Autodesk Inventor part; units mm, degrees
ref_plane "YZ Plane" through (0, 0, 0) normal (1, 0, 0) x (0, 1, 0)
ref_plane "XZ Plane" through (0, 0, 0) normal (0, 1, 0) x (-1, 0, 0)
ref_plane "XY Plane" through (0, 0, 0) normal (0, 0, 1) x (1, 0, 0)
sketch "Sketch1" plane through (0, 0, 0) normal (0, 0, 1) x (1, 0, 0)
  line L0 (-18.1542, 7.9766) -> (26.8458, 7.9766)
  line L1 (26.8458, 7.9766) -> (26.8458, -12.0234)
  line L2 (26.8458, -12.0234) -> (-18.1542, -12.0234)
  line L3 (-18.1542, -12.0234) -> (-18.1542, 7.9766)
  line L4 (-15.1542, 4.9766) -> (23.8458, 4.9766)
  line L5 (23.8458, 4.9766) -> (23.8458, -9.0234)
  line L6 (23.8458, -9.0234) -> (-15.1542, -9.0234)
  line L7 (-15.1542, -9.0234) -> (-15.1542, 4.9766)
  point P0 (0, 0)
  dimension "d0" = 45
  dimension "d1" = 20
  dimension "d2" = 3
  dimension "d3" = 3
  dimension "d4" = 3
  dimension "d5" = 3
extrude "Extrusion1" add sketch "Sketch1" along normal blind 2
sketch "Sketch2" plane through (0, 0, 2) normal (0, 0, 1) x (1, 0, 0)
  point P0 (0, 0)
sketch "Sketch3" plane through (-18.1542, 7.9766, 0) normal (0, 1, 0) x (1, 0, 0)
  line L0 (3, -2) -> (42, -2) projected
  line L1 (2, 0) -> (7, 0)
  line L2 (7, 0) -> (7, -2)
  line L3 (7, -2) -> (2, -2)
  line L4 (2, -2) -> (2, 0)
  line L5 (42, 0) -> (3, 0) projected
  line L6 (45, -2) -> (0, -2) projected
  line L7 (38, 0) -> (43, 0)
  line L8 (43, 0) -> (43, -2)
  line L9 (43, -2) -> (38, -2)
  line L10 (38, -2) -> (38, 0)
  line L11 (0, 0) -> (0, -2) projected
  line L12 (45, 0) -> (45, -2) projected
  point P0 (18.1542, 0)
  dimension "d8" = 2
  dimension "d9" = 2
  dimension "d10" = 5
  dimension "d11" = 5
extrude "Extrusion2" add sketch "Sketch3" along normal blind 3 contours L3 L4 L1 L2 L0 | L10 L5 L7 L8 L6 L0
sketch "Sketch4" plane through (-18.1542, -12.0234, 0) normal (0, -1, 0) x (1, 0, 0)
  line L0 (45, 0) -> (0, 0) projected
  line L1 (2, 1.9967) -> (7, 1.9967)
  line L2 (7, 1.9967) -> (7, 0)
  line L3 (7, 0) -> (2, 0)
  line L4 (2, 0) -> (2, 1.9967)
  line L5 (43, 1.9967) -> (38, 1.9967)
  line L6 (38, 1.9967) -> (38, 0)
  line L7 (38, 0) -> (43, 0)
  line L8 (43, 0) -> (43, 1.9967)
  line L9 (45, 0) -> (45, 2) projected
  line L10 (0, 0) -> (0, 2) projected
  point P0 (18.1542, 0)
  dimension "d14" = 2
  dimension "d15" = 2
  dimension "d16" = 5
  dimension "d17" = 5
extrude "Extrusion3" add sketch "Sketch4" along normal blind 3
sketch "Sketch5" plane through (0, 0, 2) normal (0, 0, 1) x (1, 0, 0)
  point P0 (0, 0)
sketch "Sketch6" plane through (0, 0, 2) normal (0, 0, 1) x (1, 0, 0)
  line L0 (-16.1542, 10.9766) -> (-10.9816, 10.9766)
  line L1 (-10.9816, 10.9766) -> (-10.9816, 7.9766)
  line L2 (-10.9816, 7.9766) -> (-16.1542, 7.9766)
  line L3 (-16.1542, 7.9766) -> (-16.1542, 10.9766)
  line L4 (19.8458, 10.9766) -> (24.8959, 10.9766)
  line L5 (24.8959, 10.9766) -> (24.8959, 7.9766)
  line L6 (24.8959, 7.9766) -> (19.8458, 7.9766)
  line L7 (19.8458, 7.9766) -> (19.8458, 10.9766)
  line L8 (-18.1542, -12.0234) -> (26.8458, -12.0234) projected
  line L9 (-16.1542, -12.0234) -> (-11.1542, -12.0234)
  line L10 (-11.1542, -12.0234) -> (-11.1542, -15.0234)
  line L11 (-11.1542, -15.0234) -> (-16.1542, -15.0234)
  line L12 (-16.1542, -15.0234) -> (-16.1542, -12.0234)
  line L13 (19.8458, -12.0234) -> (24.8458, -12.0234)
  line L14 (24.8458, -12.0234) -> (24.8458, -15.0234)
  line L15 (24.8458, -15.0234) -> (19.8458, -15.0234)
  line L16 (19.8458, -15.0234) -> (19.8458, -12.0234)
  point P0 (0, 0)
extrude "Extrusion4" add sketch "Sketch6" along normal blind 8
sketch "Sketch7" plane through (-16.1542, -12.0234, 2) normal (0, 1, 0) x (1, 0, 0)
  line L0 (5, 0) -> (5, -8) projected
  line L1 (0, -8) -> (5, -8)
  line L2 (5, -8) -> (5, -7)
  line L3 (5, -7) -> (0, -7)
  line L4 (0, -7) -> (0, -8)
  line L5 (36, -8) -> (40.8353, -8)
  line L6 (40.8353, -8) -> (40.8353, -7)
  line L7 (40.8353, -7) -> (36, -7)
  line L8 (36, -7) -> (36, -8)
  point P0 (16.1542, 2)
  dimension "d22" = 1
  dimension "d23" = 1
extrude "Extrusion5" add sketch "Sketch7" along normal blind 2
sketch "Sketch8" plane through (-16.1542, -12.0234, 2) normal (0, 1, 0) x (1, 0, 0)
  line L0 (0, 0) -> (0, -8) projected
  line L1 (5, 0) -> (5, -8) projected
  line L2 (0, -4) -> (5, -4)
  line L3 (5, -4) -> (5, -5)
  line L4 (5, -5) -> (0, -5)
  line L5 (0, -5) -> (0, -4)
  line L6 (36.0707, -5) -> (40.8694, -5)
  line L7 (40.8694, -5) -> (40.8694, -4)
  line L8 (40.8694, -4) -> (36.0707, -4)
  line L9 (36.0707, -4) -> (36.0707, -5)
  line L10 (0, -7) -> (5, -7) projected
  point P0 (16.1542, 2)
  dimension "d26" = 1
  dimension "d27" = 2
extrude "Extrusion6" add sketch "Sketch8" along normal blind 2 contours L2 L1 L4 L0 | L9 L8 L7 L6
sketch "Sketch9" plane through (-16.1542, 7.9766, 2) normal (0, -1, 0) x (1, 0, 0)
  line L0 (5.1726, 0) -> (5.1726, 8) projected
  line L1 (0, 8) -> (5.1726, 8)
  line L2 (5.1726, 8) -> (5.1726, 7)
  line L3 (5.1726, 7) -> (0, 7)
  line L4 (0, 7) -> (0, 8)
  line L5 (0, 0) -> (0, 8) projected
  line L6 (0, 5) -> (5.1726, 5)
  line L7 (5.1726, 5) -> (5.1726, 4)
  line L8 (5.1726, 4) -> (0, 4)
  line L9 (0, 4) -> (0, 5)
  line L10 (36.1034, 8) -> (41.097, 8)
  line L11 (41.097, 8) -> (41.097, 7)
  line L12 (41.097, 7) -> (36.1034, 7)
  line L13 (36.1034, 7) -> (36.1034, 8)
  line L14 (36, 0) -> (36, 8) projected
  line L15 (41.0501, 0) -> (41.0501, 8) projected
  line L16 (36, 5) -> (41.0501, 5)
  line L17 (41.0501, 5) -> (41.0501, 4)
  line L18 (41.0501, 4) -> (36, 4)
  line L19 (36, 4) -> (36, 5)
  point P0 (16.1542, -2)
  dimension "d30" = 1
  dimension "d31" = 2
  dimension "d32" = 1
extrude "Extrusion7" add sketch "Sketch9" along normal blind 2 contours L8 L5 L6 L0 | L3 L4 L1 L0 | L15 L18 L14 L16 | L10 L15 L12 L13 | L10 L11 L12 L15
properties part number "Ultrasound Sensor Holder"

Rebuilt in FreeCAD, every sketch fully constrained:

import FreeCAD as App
import Part
import Sketcher
Q = App.Units.Quantity


def add_polygon(sketch, points):
    """Adds a closed chain of lines whose ends are joined by coincident constraints."""
    first, n = sketch.GeometryCount, len(points)
    for a, b in zip(points, points[1:] + points[:1]):
        sketch.addGeometry(Part.LineSegment(App.Vector(*a, 0), App.Vector(*b, 0)), False)
    for i in range(n):
        sketch.addConstraint(Sketcher.Constraint("Coincident", first + i, 2, first + (i + 1) % n, 1))

doc = App.newDocument("Part")
body = doc.addObject("PartDesign::Body", "Body")
body.AllowCompound = True

# Sketch on XY plane
sketch1 = body.newObject("Sketcher::SketchObject", "Sketch")
sketch1.AttachmentSupport = (doc.getObject("XY_Plane"), [""])
sketch1.MapMode = "FlatFace"
add_polygon(sketch1, [(26.8458, 7.9766), (-18.1542, 7.9766), (-18.1542, -12.0234), (26.8458, -12.0234)])  # lines 0-3
add_polygon(sketch1, [(-15.1542, -9.0234), (-15.1542, 4.9766), (23.8458, 4.9766), (23.8458, -9.0234)])  # lines 4-7
sketch1.addConstraint([
    Sketcher.Constraint("Horizontal", 0),
    Sketcher.Constraint("Vertical", 1),
    Sketcher.Constraint("Horizontal", 2),
    Sketcher.Constraint("Vertical", 3),
    Sketcher.Constraint("Vertical", 4),
    Sketcher.Constraint("Horizontal", 5),
    Sketcher.Constraint("Vertical", 6),
    Sketcher.Constraint("Horizontal", 7),
    Sketcher.Constraint("DistanceX", 0, 2, 0, 1, Q("45 mm")),
    Sketcher.Constraint("DistanceY", 1, 2, 1, 1, Q("20 mm")),
    Sketcher.Constraint("DistanceX", 0, 2, 4, 2, Q("3 mm")),
    Sketcher.Constraint("DistanceY", 4, 2, 0, 2, Q("3 mm")),
    Sketcher.Constraint("DistanceX", 5, 2, 3, 2, Q("3 mm")),
    Sketcher.Constraint("DistanceY", 2, 2, 6, 2, Q("3 mm")),
    Sketcher.Constraint("DistanceX", 0, 2, -1, 1, Q("18.1542 mm")),
    Sketcher.Constraint("DistanceY", -1, 1, 0, 2, Q("7.9766 mm")),
])
pad1 = body.newObject("PartDesign::Pad", "Pad")
pad1.Profile = sketch1
pad1.Length = 2

# Sketch on XZ plane
sketch2 = body.newObject("Sketcher::SketchObject", "Sketch001")
sketch2.AttachmentSupport = (doc.getObject("XZ_Plane"), [""])
sketch2.MapMode = "FlatFace"
sketch2.AttachmentOffset = App.Placement(App.Vector(0, 0, -7.9766), App.Rotation())
add_polygon(sketch2, [(-16.1542, 2), (-11.1542, 2), (-11.1542, 0), (-16.1542, 0)])  # lines 0-3
add_polygon(sketch2, [(19.8458, 0), (19.8458, 2), (24.8458, 2), (24.8458, 0)])  # lines 4-7
sketch2.addConstraint([
    Sketcher.Constraint("Horizontal", 0),
    Sketcher.Constraint("Vertical", 1),
    Sketcher.Constraint("Horizontal", 2),
    Sketcher.Constraint("Vertical", 3),
    Sketcher.Constraint("Vertical", 4),
    Sketcher.Constraint("Horizontal", 5),
    Sketcher.Constraint("Vertical", 6),
    Sketcher.Constraint("Horizontal", 7),
    Sketcher.Constraint("PointOnObject", 1, 2, -1),
    Sketcher.Constraint("PointOnObject", 6, 2, -1),
    Sketcher.Constraint("Horizontal", 3, 2, 4, 2),
    Sketcher.Constraint("Equal", 2, 5),
    Sketcher.Constraint("DistanceX", 0, 1, 0, 2, Q("5 mm")),
    Sketcher.Constraint("DistanceY", 1, 2, 1, 1, Q("2 mm")),
    Sketcher.Constraint("DistanceX", 0, 2, 4, 2, Q("31 mm")),
    Sketcher.Constraint("DistanceX", 0, 2, -1, 1, Q("11.1542 mm")),
])
pad2 = body.newObject("PartDesign::Pad", "Pad001")
pad2.Profile = sketch2
pad2.Length = 3
pad2.Reversed = True

# Sketch on XZ plane
sketch3 = body.newObject("Sketcher::SketchObject", "Sketch002")
sketch3.AttachmentSupport = (doc.getObject("XZ_Plane"), [""])
sketch3.MapMode = "FlatFace"
sketch3.AttachmentOffset = App.Placement(App.Vector(0, 0, 12.0234), App.Rotation())
add_polygon(sketch3, [(-16.1542, 0), (-11.1542, 0), (-11.1542, 1.9967), (-16.1542, 1.9967)])  # lines 0-3
add_polygon(sketch3, [(19.8458, 0), (24.8458, 0), (24.8458, 1.9967), (19.8458, 1.9967)])  # lines 4-7
sketch3.addConstraint([
    Sketcher.Constraint("Horizontal", 0),
    Sketcher.Constraint("Vertical", 1),
    Sketcher.Constraint("Horizontal", 2),
    Sketcher.Constraint("Vertical", 3),
    Sketcher.Constraint("Horizontal", 4),
    Sketcher.Constraint("Vertical", 5),
    Sketcher.Constraint("Horizontal", 6),
    Sketcher.Constraint("Vertical", 7),
    Sketcher.Constraint("PointOnObject", 0, 2, -1),
    Sketcher.Constraint("PointOnObject", 4, 2, -1),
    Sketcher.Constraint("Horizontal", 2, 2, 5, 2),
    Sketcher.Constraint("Equal", 2, 4),
    Sketcher.Constraint("DistanceX", 0, 1, 0, 2, Q("5 mm")),
    Sketcher.Constraint("DistanceX", 0, 2, 4, 2, Q("36 mm")),
    Sketcher.Constraint("DistanceY", 1, 1, 1, 2, Q("1.9967 mm")),
    Sketcher.Constraint("DistanceX", 0, 2, -1, 1, Q("11.1542 mm")),
])
pad3 = body.newObject("PartDesign::Pad", "Pad002")
pad3.Profile = sketch3
pad3.Length = 3

# Sketch on XY plane
sketch4 = body.newObject("Sketcher::SketchObject", "Sketch003")
sketch4.AttachmentSupport = (doc.getObject("XY_Plane"), [""])
sketch4.MapMode = "FlatFace"
sketch4.AttachmentOffset = App.Placement(App.Vector(0, 0, 2), App.Rotation())
add_polygon(sketch4, [(-10.9816, 10.9766), (-16.1542, 10.9766), (-16.1542, 7.9766), (-10.9816, 7.9766)])  # lines 0-3
add_polygon(sketch4, [(24.8959, 10.9766), (19.8458, 10.9766), (19.8458, 7.9766), (24.8959, 7.9766)])  # lines 4-7
add_polygon(sketch4, [(24.8458, -12.0234), (19.8458, -12.0234), (19.8458, -15.0234), (24.8458, -15.0234)])  # lines 8-11
add_polygon(sketch4, [(-11.1542, -12.0234), (-16.1542, -12.0234), (-16.1542, -15.0234), (-11.1542, -15.0234)])  # lines 12-15
sketch4.addConstraint([
    Sketcher.Constraint("Horizontal", 0),
    Sketcher.Constraint("Vertical", 1),
    Sketcher.Constraint("Horizontal", 2),
    Sketcher.Constraint("Vertical", 3),
    Sketcher.Constraint("Horizontal", 4),
    Sketcher.Constraint("Vertical", 5),
    Sketcher.Constraint("Horizontal", 6),
    Sketcher.Constraint("Vertical", 7),
    Sketcher.Constraint("Horizontal", 8),
    Sketcher.Constraint("Vertical", 9),
    Sketcher.Constraint("Horizontal", 10),
    Sketcher.Constraint("Vertical", 11),
    Sketcher.Constraint("Horizontal", 12),
    Sketcher.Constraint("Vertical", 13),
    Sketcher.Constraint("Horizontal", 14),
    Sketcher.Constraint("Vertical", 15),
    Sketcher.Constraint("Horizontal", 3, 2, 4, 2),
    Sketcher.Constraint("Horizontal", 2, 2, 5, 2),
    Sketcher.Constraint("Horizontal", 11, 2, 12, 2),
    Sketcher.Constraint("Horizontal", 10, 2, 13, 2),
    Sketcher.Constraint("Vertical", 5, 2, 8, 2),
    Sketcher.Constraint("Vertical", 1, 2, 12, 2),
    Sketcher.Constraint("Equal", 10, 12),
    Sketcher.Constraint("Equal", 7, 9),
    Sketcher.Constraint("DistanceX", 8, 2, 8, 1, Q("5 mm")),
    Sketcher.Constraint("DistanceY", 1, 2, 1, 1, Q("3 mm")),
    Sketcher.Constraint("DistanceX", 0, 2, 4, 2, Q("36 mm")),
    Sketcher.Constraint("DistanceY", 8, 2, 5, 2, Q("20 mm")),
    Sketcher.Constraint("DistanceX", 4, 2, 4, 1, Q("5.05 mm")),
    Sketcher.Constraint("DistanceX", 0, 2, 0, 1, Q("5.1726 mm")),
    Sketcher.Constraint("DistanceX", -1, 1, 6, 2, Q("24.896 mm")),
    Sketcher.Constraint("DistanceY", -1, 1, 0, 2, Q("10.9766 mm")),
])
pad4 = body.newObject("PartDesign::Pad", "Pad003")
pad4.Profile = sketch4
pad4.Length = 8

# Sketch on XZ plane
sketch5 = body.newObject("Sketcher::SketchObject", "Sketch004")
sketch5.AttachmentSupport = (doc.getObject("XZ_Plane"), [""])
sketch5.MapMode = "FlatFace"
sketch5.AttachmentOffset = App.Placement(App.Vector(0, 0, 12.0234), App.Rotation())
add_polygon(sketch5, [(-11.1542, 10), (-11.1542, 9), (-16.1542, 9), (-16.1542, 10)])  # lines 0-3
add_polygon(sketch5, [(19.8458, 9), (19.8458, 10), (24.6811, 10), (24.6811, 9)])  # lines 4-7
sketch5.addConstraint([
    Sketcher.Constraint("Vertical", 0),
    Sketcher.Constraint("Horizontal", 1),
    Sketcher.Constraint("Vertical", 2),
    Sketcher.Constraint("Horizontal", 3),
    Sketcher.Constraint("Vertical", 4),
    Sketcher.Constraint("Horizontal", 5),
    Sketcher.Constraint("Vertical", 6),
    Sketcher.Constraint("Horizontal", 7),
    Sketcher.Constraint("Horizontal", 3, 2, 4, 2),
    Sketcher.Constraint("Horizontal", 1, 2, 6, 2),
    Sketcher.Constraint("DistanceY", 0, 2, 0, 1, Q("1 mm")),
    Sketcher.Constraint("DistanceX", 1, 2, 1, 1, Q("5 mm")),
    Sketcher.Constraint("DistanceY", -1, 1, 0, 2, Q("9 mm")),
    Sketcher.Constraint("DistanceX", 3, 2, 4, 2, Q("31 mm")),
    Sketcher.Constraint("DistanceX", 5, 1, 5, 2, Q("4.8353 mm")),
    Sketcher.Constraint("DistanceX", -1, 1, 5, 2, Q("24.681 mm")),
])
pad5 = body.newObject("PartDesign::Pad", "Pad004")
pad5.Profile = sketch5
pad5.Length = 2
pad5.Reversed = True

# Sketch on XZ plane
sketch6 = body.newObject("Sketcher::SketchObject", "Sketch005")
sketch6.AttachmentSupport = (doc.getObject("XZ_Plane"), [""])
sketch6.MapMode = "FlatFace"
sketch6.AttachmentOffset = App.Placement(App.Vector(0, 0, 12.0234), App.Rotation())
add_polygon(sketch6, [(-11.1542, 6), (-16.1542, 6), (-16.1542, 7), (-11.1542, 7)])  # lines 0-3
add_polygon(sketch6, [(19.9165, 6), (19.9165, 7), (24.7152, 7), (24.7152, 6)])  # lines 4-7
sketch6.addConstraint([
    Sketcher.Constraint("Horizontal", 0),
    Sketcher.Constraint("Vertical", 1),
    Sketcher.Constraint("Horizontal", 2),
    Sketcher.Constraint("Vertical", 3),
    Sketcher.Constraint("Vertical", 4),
    Sketcher.Constraint("Horizontal", 5),
    Sketcher.Constraint("Vertical", 6),
    Sketcher.Constraint("Horizontal", 7),
    Sketcher.Constraint("Horizontal", 2, 2, 4, 2),
    Sketcher.Constraint("Horizontal", 3, 2, 6, 2),
    Sketcher.Constraint("DistanceY", 1, 1, 1, 2, Q("1 mm")),
    Sketcher.Constraint("DistanceX", 0, 2, 0, 1, Q("5 mm")),
    Sketcher.Constraint("DistanceY", -1, 1, 0, 2, Q("6 mm")),
    Sketcher.Constraint("DistanceX", 5, 1, 5, 2, Q("4.7987 mm")),
    Sketcher.Constraint("DistanceX", 0, 2, -1, 1, Q("16.1542 mm")),
    Sketcher.Constraint("DistanceX", -1, 1, 4, 2, Q("19.9165 mm")),
])
pad6 = body.newObject("PartDesign::Pad", "Pad005")
pad6.Profile = sketch6
pad6.Length = 2
pad6.Reversed = True

# Sketch on XZ plane
sketch7 = body.newObject("Sketcher::SketchObject", "Sketch006")
sketch7.AttachmentSupport = (doc.getObject("XZ_Plane"), [""])
sketch7.MapMode = "FlatFace"
sketch7.AttachmentOffset = App.Placement(App.Vector(0, 0, -7.9766), App.Rotation())
add_polygon(sketch7, [(-16.1542, 6), (-10.9816, 6), (-10.9816, 7), (-16.1542, 7)])  # lines 0-3
add_polygon(sketch7, [(-16.1542, 9), (-10.9816, 9), (-10.9816, 10), (-16.1542, 10)])  # lines 4-7
add_polygon(sketch7, [(24.8959, 6), (24.8959, 7), (19.8458, 7), (19.8458, 6)])  # lines 8-11
add_polygon(sketch7, [(19.9492, 10), (19.9492, 9), (24.9428, 9), (24.9428, 10)])  # lines 12-15
sketch7.addConstraint([
    Sketcher.Constraint("Horizontal", 0),
    Sketcher.Constraint("Vertical", 1),
    Sketcher.Constraint("Horizontal", 2),
    Sketcher.Constraint("Vertical", 3),
    Sketcher.Constraint("Horizontal", 4),
    Sketcher.Constraint("Vertical", 5),
    Sketcher.Constraint("Horizontal", 6),
    Sketcher.Constraint("Vertical", 7),
    Sketcher.Constraint("Vertical", 8),
    Sketcher.Constraint("Horizontal", 9),
    Sketcher.Constraint("Vertical", 10),
    Sketcher.Constraint("Horizontal", 11),
    Sketcher.Constraint("Vertical", 12),
    Sketcher.Constraint("Horizontal", 13),
    Sketcher.Constraint("Vertical", 14),
    Sketcher.Constraint("Horizontal", 15),
    Sketcher.Constraint("Horizontal", 2, 2, 8, 2),
    Sketcher.Constraint("Horizontal", 3, 2, 10, 2),
    Sketcher.Constraint("Horizontal", 7, 2, 12, 2),
    Sketcher.Constraint("Horizontal", 6, 2, 14, 2),
    Sketcher.Constraint("Vertical", 1, 2, 4, 2),
    Sketcher.Constraint("Vertical", 3, 2, 6, 2),
    Sketcher.Constraint("Equal", 3, 5),
    Sketcher.Constraint("DistanceY", 1, 1, 1, 2, Q("1 mm")),
    Sketcher.Constraint("DistanceY", 1, 2, 4, 2, Q("2 mm")),
    Sketcher.Constraint("DistanceY", -1, 1, 0, 2, Q("6 mm")),
    Sketcher.Constraint("DistanceX", 9, 2, 9, 1, Q("5.05 mm")),
    Sketcher.Constraint("DistanceX", 2, 2, 8, 2, Q("41.05 mm")),
    Sketcher.Constraint("DistanceX", 0, 1, 0, 2, Q("5.1726 mm")),
    Sketcher.Constraint("DistanceX", 13, 1, 13, 2, Q("4.9936 mm")),
    Sketcher.Constraint("DistanceX", -1, 1, 8, 2, Q("24.896 mm")),
    Sketcher.Constraint("DistanceX", 8, 2, 13, 2, Q("0.047 mm")),
])
pad7 = body.newObject("PartDesign::Pad", "Pad006")
pad7.Profile = sketch7
pad7.Length = 2

doc.recompute()
